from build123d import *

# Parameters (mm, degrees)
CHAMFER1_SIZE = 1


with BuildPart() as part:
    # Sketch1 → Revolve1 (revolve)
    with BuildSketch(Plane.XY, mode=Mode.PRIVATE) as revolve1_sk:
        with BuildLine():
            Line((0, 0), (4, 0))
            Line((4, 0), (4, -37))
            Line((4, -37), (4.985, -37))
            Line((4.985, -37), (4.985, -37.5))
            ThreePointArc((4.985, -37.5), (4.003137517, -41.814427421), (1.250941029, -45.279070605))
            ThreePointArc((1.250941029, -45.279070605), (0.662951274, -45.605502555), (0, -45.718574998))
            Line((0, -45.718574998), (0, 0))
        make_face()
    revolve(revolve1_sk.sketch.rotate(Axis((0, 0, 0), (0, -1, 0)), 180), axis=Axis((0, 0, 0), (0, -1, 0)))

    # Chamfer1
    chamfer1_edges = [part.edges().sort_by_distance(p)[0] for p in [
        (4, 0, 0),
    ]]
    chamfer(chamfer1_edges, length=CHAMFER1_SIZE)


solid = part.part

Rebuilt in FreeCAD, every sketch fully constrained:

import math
import FreeCAD as App
import Part
import Sketcher
from FreeCAD import Vector


def edges_at(feature, points):
    """Names of the edges that pass closest to the given points."""
    edges = feature.Shape.Edges
    near = lambda p: min(range(len(edges)), key=lambda i: edges[i].distToShape(Part.Vertex(*p))[0])
    return sorted({f"Edge{near(p) + 1}" for p in points})

doc = App.newDocument("Part")
body = doc.addObject("PartDesign::Body", "Body")

sketch1 = body.newObject("Sketcher::SketchObject", "Sketch")
sketch1.AttachmentSupport = (doc.getObject("XY_Plane"), [""])
sketch1.MapMode = "FlatFace"
sketch1.addGeometry([
    Part.LineSegment(Vector(4, 0, 0), Vector(0, 0, 0)),
    Part.LineSegment(Vector(0, 0, 0), Vector(0, -45.7, 0)),
    Part.ArcOfCircle(Part.Circle(Vector(0, -43.7, 0), Vector(0, 0, 1), 2), math.radians(-90), math.radians(-51)),
    Part.ArcOfCircle(Part.Circle(Vector(-5, -37.5, 0), Vector(0, 0, 1), 10), math.radians(-51), math.radians(0)),
    Part.LineSegment(Vector(5, -37.5, 0), Vector(5, -37, 0)),
    Part.LineSegment(Vector(5, -37, 0), Vector(4, -37, 0)),
    Part.LineSegment(Vector(4, -37, 0), Vector(4, 0, 0)),
], False)
sketch1.addConstraint([
    Sketcher.Constraint("Coincident", 0, 2, 1, 1),
    Sketcher.Constraint("Coincident", 1, 2, 2, 1),
    Sketcher.Constraint("Tangent", 2, 2, 3, 1),
    Sketcher.Constraint("Tangent", 3, 2, 4, 1),
    Sketcher.Constraint("Coincident", 4, 2, 5, 1),
    Sketcher.Constraint("Coincident", 5, 2, 6, 1),
    Sketcher.Constraint("Coincident", 6, 2, 0, 1),
    Sketcher.Constraint("Horizontal", 0),
    Sketcher.Constraint("Vertical", 1),
    Sketcher.Constraint("Vertical", 4),
    Sketcher.Constraint("Horizontal", 5),
    Sketcher.Constraint("Vertical", 6),
    Sketcher.Constraint("Coincident", 0, 2, -1, 1),
    Sketcher.Constraint("PointOnObject", 2, 3, -2),
    Sketcher.Constraint("Radius", 2, 2.0),
    Sketcher.Constraint("DistanceX", 0, 2, 0, 1, 4.0),
    Sketcher.Constraint("DistanceY", 6, 1, 6, 2, 37.0),
    Sketcher.Constraint("Radius", 3, 9.97),
    Sketcher.Constraint("DistanceY", 4, 1, 4, 2, 0.5),
    Sketcher.Constraint("DistanceX", 5, 2, 5, 1, 0.985),
])
revolution = body.newObject("PartDesign::Revolution", "Revolution")
revolution.Profile = sketch1
revolution.ReferenceAxis = (sketch1, ["V_Axis"])
revolution.Angle = 360
doc.recompute()

chamfer = body.newObject("PartDesign::Chamfer", "Chamfer")
chamfer.Base = (revolution, edges_at(revolution, [(4, 0, 0)]))
chamfer.Size = 1

doc.recompute()
